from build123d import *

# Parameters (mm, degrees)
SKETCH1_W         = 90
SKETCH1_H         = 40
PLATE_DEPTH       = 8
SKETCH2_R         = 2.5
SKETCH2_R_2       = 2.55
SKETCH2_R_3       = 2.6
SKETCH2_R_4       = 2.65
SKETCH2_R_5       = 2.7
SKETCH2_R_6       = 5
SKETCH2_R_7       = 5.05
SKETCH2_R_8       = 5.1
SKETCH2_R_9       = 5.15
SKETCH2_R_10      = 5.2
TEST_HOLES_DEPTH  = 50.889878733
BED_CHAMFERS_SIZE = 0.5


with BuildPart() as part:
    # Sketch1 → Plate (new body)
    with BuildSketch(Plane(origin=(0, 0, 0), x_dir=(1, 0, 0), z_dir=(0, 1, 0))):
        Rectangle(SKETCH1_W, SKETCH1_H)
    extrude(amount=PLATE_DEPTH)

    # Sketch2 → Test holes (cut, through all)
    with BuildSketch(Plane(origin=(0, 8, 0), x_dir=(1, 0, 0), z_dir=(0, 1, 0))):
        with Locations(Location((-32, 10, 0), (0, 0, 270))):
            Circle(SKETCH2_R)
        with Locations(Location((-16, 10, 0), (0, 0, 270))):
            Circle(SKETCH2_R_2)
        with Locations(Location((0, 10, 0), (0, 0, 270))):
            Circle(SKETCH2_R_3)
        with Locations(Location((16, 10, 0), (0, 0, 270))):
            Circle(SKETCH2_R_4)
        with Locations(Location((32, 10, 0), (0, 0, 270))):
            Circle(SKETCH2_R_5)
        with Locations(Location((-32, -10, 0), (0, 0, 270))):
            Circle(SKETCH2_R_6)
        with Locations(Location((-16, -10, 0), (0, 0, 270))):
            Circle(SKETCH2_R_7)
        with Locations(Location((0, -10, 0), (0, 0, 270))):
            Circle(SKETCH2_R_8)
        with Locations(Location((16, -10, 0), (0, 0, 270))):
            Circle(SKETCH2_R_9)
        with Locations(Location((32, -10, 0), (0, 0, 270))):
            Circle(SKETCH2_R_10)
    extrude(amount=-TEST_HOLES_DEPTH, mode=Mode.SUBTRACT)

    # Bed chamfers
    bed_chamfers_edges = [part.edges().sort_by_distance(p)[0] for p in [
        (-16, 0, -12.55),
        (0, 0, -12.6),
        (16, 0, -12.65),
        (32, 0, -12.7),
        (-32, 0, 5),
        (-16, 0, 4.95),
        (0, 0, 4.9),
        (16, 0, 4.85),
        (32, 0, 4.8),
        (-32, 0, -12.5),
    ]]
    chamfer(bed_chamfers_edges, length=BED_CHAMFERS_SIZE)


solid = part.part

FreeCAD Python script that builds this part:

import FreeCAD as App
import Part
import Sketcher


def edges_at(feature, points):
    """Names of the edges that pass closest to the given points."""
    edges = feature.Shape.Edges
    near = lambda p: min(range(len(edges)), key=lambda i: edges[i].distToShape(Part.Vertex(*p))[0])
    return sorted({f"Edge{near(p) + 1}" for p in points})


def add_polygon(sketch, points):
    """Adds a closed chain of lines whose ends are joined by coincident constraints."""
    first, n = sketch.GeometryCount, len(points)
    for a, b in zip(points, points[1:] + points[:1]):
        sketch.addGeometry(Part.LineSegment(App.Vector(*a, 0), App.Vector(*b, 0)), False)
    for i in range(n):
        sketch.addConstraint(Sketcher.Constraint("Coincident", first + i, 2, first + (i + 1) % n, 1))

doc = App.newDocument("Part")
body = doc.addObject("PartDesign::Body", "Body")

# Sketch on XZ plane
sketch1 = body.newObject("Sketcher::SketchObject", "Sketch")
sketch1.AttachmentSupport = (doc.getObject("XZ_Plane"), [""])
sketch1.MapMode = "FlatFace"
add_polygon(sketch1, [(-45, -20), (-45, 20), (45, 20), (45, -20)])  # lines 0-3
sketch1.addConstraint(Sketcher.Constraint("Vertical", 0))
sketch1.addConstraint(Sketcher.Constraint("Horizontal", 1))
sketch1.addConstraint(Sketcher.Constraint("Vertical", 2))
sketch1.addConstraint(Sketcher.Constraint("Horizontal", 3))
sketch1.addConstraint(Sketcher.Constraint("Symmetric", 0, 2, 2, 2, -1, 1))
sketch1.addConstraint(Sketcher.Constraint("DistanceX", 1, 1, 1, 2, 90.0))
sketch1.addConstraint(Sketcher.Constraint("DistanceY", 0, 1, 0, 2, 40.0))
pad1 = body.newObject("PartDesign::Pad", "Pad")
pad1.Profile = sketch1
pad1.Length = 8
pad1.Reversed = True

# Sketch on XZ plane
sketch2 = body.newObject("Sketcher::SketchObject", "Sketch001")
sketch2.AttachmentSupport = (doc.getObject("XZ_Plane"), [""])
sketch2.MapMode = "FlatFace"
sketch2.AttachmentOffset = App.Placement(App.Vector(0, 0, -8), App.Rotation())
sketch2.addGeometry(Part.Circle(App.Vector(-32, -10, 0), App.Vector(0, 0, 1), 2.5), False)
sketch2.addGeometry(Part.Circle(App.Vector(-16, -10, 0), App.Vector(0, 0, 1), 2.5), False)
sketch2.addGeometry(Part.Circle(App.Vector(0, -10, 0), App.Vector(0, 0, 1), 2.6), False)
sketch2.addGeometry(Part.Circle(App.Vector(16, -10, 0), App.Vector(0, 0, 1), 2.6), False)
sketch2.addGeometry(Part.Circle(App.Vector(32, -10, 0), App.Vector(0, 0, 1), 2.7), False)
sketch2.addGeometry(Part.Circle(App.Vector(-32, 10, 0), App.Vector(0, 0, 1), 5), False)
sketch2.addGeometry(Part.Circle(App.Vector(-16, 10, 0), App.Vector(0, 0, 1), 5), False)
sketch2.addGeometry(Part.Circle(App.Vector(0, 10, 0), App.Vector(0, 0, 1), 5.1), False)
sketch2.addGeometry(Part.Circle(App.Vector(16, 10, 0), App.Vector(0, 0, 1), 5.2), False)
sketch2.addGeometry(Part.Circle(App.Vector(32, 10, 0), App.Vector(0, 0, 1), 5.2), False)
sketch2.addConstraint(Sketcher.Constraint("Symmetric", 4, 3, 5, 3, -1, 1))
sketch2.addConstraint(Sketcher.Constraint("Symmetric", 3, 3, 6, 3, -1, 1))
sketch2.addConstraint(Sketcher.Constraint("Symmetric", 2, 3, 7, 3, -1, 1))
sketch2.addConstraint(Sketcher.Constraint("Symmetric", 1, 3, 8, 3, -1, 1))
sketch2.addConstraint(Sketcher.Constraint("Symmetric", 0, 3, 9, 3, -1, 1))
sketch2.addConstraint(Sketcher.Constraint("Symmetric", 1, 3, 3, 3, -2))
sketch2.addConstraint(Sketcher.Constraint("Symmetric", 0, 3, 4, 3, -2))
sketch2.addConstraint(Sketcher.Constraint("PointOnObject", 2, 3, -2))
sketch2.addConstraint(Sketcher.Constraint("Horizontal", 0, 3, 1, 3))
sketch2.addConstraint(Sketcher.Constraint("Horizontal", 1, 3, 2, 3))
sketch2.addConstraint(Sketcher.Constraint("Diameter", 0, 5.0))
sketch2.addConstraint(Sketcher.Constraint("Diameter", 5, 10.0))
sketch2.addConstraint(Sketcher.Constraint("Diameter", 1, 5.1))
sketch2.addConstraint(Sketcher.Constraint("Diameter", 2, 5.2))
sketch2.addConstraint(Sketcher.Constraint("Diameter", 3, 5.3))
sketch2.addConstraint(Sketcher.Constraint("Diameter", 4, 5.4))
sketch2.addConstraint(Sketcher.Constraint("Diameter", 6, 10.1))
sketch2.addConstraint(Sketcher.Constraint("Diameter", 7, 10.2))
sketch2.addConstraint(Sketcher.Constraint("Diameter", 8, 10.3))
sketch2.addConstraint(Sketcher.Constraint("Diameter", 9, 10.4))
sketch2.addConstraint(Sketcher.Constraint("DistanceX", 0, 3, -1, 1, 32.0))
sketch2.addConstraint(Sketcher.Constraint("DistanceY", 0, 3, -1, 1, 10.0))
sketch2.addConstraint(Sketcher.Constraint("DistanceX", 1, 3, -1, 1, 16.0))
pocket1 = body.newObject("PartDesign::Pocket", "Pocket")
pocket1.Profile = sketch2
pocket1.Type = "ThroughAll"
pocket1.Reversed = True
doc.recompute()

chamfer = body.newObject("PartDesign::Chamfer", "Chamfer")
chamfer.Base = (pocket1, edges_at(pocket1, [
    (-16, 0, -12.55),
    (0, 0, -12.6),
    (16, 0, -12.65),
    (32, 0, -12.7),
    (-32, 0, 5),
    (-16, 0, 4.95),
    (0, 0, 4.9),
    (16, 0, 4.85),
    (32, 0, 4.8),
    (-32, 0, -12.5),
]))
chamfer.Size = 0.5

doc.recompute()
